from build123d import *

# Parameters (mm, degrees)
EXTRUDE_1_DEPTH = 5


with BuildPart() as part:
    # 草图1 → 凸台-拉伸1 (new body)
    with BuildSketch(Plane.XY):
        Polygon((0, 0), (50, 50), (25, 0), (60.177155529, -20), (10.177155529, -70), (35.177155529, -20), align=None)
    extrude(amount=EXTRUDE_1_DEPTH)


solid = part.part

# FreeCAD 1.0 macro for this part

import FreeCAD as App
import Part
import Sketcher

V = App.Vector
Q = App.Units.Quantity


def add_polygon(sketch, points):
    """Adds a closed chain of lines whose ends are joined by coincident constraints."""
    first, n = sketch.GeometryCount, len(points)
    for a, b in zip(points, points[1:] + points[:1]):
        sketch.addGeometry(Part.LineSegment(App.Vector(*a, 0), App.Vector(*b, 0)), False)
    for i in range(n):
        sketch.addConstraint(Sketcher.Constraint("Coincident", first + i, 2, first + (i + 1) % n, 1))

doc = App.newDocument("Part")
body = doc.addObject("PartDesign::Body", "Body")

# Sketch on XY plane
sketch1 = body.newObject("Sketcher::SketchObject", "Sketch")
sketch1.AttachmentSupport = (doc.getObject("XY_Plane"), [""])
sketch1.MapMode = "FlatFace"
add_polygon(sketch1, [(50, 50), (0, 0), (35, -20), (10, -70), (60, -20), (25, 0)])  # lines 0-5
sketch1.addConstraint(Sketcher.Constraint("Coincident", 0, 2, -1, 1))
sketch1.addConstraint(Sketcher.Constraint("PointOnObject", 4, 2, -1))
sketch1.addConstraint(Sketcher.Constraint("Parallel", 0, 3))
sketch1.addConstraint(Sketcher.Constraint("Parallel", 1, 4))
sketch1.addConstraint(Sketcher.Constraint("Parallel", 2, 5))
sketch1.addConstraint(Sketcher.Constraint("Horizontal", 1, 2, 3, 2))
sketch1.addConstraint(Sketcher.Constraint("Angle", 0, Q("-135 deg")))
sketch1.addConstraint(Sketcher.Constraint("DistanceY", 1, 2, -1, 1, 20.0))
sketch1.addConstraint(Sketcher.Constraint("DistanceY", 2, 2, -1, 1, 70.0))
sketch1.addConstraint(Sketcher.Constraint("DistanceX", -1, 1, 4, 2, 25.0))
sketch1.addConstraint(Sketcher.Constraint("Distance", 1, 40.465198))
pad1 = body.newObject("PartDesign::Pad", "Pad")
pad1.Profile = sketch1
pad1.Length = 5

doc.recompute()
